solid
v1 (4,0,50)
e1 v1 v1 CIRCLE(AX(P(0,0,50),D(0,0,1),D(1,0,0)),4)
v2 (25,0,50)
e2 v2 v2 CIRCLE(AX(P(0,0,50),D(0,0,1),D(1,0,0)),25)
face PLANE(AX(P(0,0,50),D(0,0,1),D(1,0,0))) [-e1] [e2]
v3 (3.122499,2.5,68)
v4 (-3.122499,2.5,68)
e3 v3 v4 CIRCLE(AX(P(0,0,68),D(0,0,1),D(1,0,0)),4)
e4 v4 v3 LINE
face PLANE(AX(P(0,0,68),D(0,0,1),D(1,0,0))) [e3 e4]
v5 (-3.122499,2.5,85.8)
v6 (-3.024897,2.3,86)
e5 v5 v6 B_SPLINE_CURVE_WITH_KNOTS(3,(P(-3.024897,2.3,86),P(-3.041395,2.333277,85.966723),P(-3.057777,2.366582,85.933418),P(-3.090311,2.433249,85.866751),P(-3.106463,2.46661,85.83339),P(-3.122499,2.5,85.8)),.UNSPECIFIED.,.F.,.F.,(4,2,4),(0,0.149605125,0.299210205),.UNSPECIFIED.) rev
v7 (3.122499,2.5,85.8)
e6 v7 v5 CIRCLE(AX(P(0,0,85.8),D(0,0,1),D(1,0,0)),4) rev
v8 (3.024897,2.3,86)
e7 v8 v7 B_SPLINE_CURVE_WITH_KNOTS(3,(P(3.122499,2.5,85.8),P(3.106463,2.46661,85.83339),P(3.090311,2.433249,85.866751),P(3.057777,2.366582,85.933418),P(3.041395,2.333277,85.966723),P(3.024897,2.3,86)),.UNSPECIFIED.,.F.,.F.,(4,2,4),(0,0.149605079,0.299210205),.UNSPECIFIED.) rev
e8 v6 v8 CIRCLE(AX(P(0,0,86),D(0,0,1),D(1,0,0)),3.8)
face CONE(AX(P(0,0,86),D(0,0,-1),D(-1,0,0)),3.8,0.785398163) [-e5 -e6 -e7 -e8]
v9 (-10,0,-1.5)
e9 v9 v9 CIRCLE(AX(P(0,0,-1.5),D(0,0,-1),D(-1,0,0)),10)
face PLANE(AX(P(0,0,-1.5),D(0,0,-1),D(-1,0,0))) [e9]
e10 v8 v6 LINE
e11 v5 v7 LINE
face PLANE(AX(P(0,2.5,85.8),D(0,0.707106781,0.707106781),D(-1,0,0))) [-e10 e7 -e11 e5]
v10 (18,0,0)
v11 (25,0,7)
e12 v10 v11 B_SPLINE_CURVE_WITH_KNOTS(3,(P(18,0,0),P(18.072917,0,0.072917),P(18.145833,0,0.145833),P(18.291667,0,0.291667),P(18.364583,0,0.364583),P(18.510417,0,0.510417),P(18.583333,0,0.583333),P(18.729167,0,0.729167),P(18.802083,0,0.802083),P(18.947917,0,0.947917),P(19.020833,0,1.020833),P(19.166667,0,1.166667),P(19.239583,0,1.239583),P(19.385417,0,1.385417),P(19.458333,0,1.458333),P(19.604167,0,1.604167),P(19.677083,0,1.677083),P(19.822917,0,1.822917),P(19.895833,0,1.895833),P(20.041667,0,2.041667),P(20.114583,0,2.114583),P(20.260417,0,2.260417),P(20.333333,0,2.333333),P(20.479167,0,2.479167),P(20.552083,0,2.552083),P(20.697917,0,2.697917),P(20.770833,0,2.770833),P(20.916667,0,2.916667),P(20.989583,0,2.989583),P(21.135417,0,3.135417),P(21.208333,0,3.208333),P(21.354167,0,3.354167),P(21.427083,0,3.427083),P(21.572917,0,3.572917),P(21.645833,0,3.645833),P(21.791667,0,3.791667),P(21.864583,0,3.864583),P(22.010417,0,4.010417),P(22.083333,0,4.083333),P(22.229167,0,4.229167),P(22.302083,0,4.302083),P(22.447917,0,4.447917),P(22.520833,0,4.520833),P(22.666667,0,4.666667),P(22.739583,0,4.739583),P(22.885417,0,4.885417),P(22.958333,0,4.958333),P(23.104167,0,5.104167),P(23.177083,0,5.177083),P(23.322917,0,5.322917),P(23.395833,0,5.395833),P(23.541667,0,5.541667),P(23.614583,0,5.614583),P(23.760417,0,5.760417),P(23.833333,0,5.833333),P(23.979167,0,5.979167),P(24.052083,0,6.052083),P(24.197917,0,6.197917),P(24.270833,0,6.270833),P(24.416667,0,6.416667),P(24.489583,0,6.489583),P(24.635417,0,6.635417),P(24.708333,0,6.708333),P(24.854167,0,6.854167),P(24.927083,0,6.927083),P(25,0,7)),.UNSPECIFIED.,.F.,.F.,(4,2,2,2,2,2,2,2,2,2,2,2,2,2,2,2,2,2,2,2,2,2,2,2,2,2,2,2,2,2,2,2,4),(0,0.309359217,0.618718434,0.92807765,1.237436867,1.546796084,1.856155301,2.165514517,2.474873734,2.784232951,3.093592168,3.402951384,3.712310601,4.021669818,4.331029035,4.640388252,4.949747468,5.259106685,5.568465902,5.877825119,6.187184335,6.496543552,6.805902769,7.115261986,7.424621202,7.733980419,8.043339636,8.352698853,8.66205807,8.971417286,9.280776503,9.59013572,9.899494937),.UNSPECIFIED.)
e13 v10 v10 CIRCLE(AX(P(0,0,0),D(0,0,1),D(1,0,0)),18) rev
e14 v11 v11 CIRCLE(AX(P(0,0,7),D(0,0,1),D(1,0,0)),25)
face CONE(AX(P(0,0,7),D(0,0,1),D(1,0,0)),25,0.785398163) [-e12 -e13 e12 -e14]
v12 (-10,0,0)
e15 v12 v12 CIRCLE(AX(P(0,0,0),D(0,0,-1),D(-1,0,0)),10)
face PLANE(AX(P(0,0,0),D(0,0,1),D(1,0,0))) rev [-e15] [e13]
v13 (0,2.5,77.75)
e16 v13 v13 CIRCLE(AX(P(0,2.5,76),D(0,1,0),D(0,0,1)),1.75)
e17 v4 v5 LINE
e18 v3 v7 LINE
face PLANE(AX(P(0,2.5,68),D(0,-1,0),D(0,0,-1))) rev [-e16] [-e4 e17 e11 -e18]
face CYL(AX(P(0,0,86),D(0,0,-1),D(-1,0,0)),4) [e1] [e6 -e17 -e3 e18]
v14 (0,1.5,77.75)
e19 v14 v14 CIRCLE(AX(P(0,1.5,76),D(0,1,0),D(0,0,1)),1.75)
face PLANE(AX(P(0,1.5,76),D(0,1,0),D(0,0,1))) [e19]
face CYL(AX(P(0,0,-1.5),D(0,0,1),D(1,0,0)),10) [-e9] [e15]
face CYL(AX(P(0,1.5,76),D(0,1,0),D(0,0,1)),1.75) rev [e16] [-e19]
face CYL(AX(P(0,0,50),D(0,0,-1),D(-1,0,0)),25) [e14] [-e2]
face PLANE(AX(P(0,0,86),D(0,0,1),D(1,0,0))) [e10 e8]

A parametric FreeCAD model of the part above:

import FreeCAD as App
import Part
import Sketcher

V = App.Vector


def edges_at(feature, points):
    """Names of the edges that pass closest to the given points."""
    edges = feature.Shape.Edges
    near = lambda p: min(range(len(edges)), key=lambda i: edges[i].distToShape(Part.Vertex(*p))[0])
    return sorted({f"Edge{near(p) + 1}" for p in points})

doc = App.newDocument("Part")
body = doc.addObject("PartDesign::Body", "Body")

# Sketch on XY plane
sketch1 = doc.addObject("Sketcher::SketchObject", "Sketch")
body.addObject(sketch1)
sketch1.AttachmentSupport = (doc.XY_Plane, [""])
sketch1.MapMode = "FlatFace"
sketch1.addGeometry(Part.Circle(V(0, 0, 0), V(0, 0, 1), 25), False)
sketch1.addConstraint(Sketcher.Constraint("Coincident", 0, 3, -1, 1))
sketch1.addConstraint(Sketcher.Constraint("Diameter", 0, 50.0))
pad1 = doc.addObject("PartDesign::Pad", "Pad")
body.addObject(pad1)
pad1.Profile = sketch1
pad1.Length = 50
doc.recompute()

chamfer = doc.addObject("PartDesign::Chamfer", "Chamfer")
body.addObject(chamfer)
chamfer.Base = (pad1, edges_at(pad1, [(-25, 0, 0)]))
chamfer.Size = 7

# Sketch on XY plane
sketch2 = doc.addObject("Sketcher::SketchObject", "Sketch001")
body.addObject(sketch2)
sketch2.AttachmentSupport = (doc.XY_Plane, [""])
sketch2.MapMode = "FlatFace"
sketch2.addGeometry(Part.Circle(V(0, 0, 0), V(0, 0, 1), 10), False)
sketch2.addConstraint(Sketcher.Constraint("Coincident", 0, 3, -1, 1))
sketch2.addConstraint(Sketcher.Constraint("Diameter", 0, 20.0))
pad2 = doc.addObject("PartDesign::Pad", "Pad001")
body.addObject(pad2)
pad2.Profile = sketch2
pad2.Length = 1.5
pad2.Reversed = True

# Sketch on XY plane
sketch3 = doc.addObject("Sketcher::SketchObject", "Sketch002")
body.addObject(sketch3)
sketch3.AttachmentSupport = (doc.XY_Plane, [""])
sketch3.MapMode = "FlatFace"
sketch3.AttachmentOffset = App.Placement(V(0, 0, 50), App.Rotation())
sketch3.addGeometry(Part.Circle(V(0, 0, 0), V(0, 0, 1), 4), False)
sketch3.addConstraint(Sketcher.Constraint("Coincident", 0, 3, -1, 1))
sketch3.addConstraint(Sketcher.Constraint("Diameter", 0, 8.0))
pad3 = doc.addObject("PartDesign::Pad", "Pad002")
body.addObject(pad3)
pad3.Profile = sketch3
pad3.Length = 36

# Sketch on XY plane
sketch4 = doc.addObject("Sketcher::SketchObject", "Sketch003")
body.addObject(sketch4)
sketch4.AttachmentSupport = (doc.XY_Plane, [""])
sketch4.MapMode = "FlatFace"
sketch4.AttachmentOffset = App.Placement(V(0, 0, 86), App.Rotation())
sketch4.addGeometry(Part.LineSegment(V(-92, 2, 0), V(92, 2, 0)), False)
sketch4.addGeometry(Part.LineSegment(V(92, 2, 0), V(92, 180, 0)), False)
sketch4.addGeometry(Part.LineSegment(V(92, 180, 0), V(-92, 180, 0)), False)
sketch4.addGeometry(Part.LineSegment(V(-92, 180, 0), V(-92, 2, 0)), False)
sketch4.addConstraint(Sketcher.Constraint("Coincident", 0, 2, 1, 1))
sketch4.addConstraint(Sketcher.Constraint("Coincident", 1, 2, 2, 1))
sketch4.addConstraint(Sketcher.Constraint("Coincident", 2, 2, 3, 1))
sketch4.addConstraint(Sketcher.Constraint("Coincident", 3, 2, 0, 1))
sketch4.addConstraint(Sketcher.Constraint("Horizontal", 0))
sketch4.addConstraint(Sketcher.Constraint("Vertical", 1))
sketch4.addConstraint(Sketcher.Constraint("Horizontal", 2))
sketch4.addConstraint(Sketcher.Constraint("Vertical", 3))
sketch4.addConstraint(Sketcher.Constraint("DistanceY", -1, 1, 0, 2, 2.5))
sketch4.addConstraint(Sketcher.Constraint("DistanceX", 0, 1, 0, 2, 183.579035))
sketch4.addConstraint(Sketcher.Constraint("DistanceY", 1, 1, 1, 2, 177.334037))
sketch4.addConstraint(Sketcher.Constraint("DistanceX", -1, 1, 0, 2, 91.789518))
pocket1 = doc.addObject("PartDesign::Pocket", "Pocket")
body.addObject(pocket1)
pocket1.Profile = sketch4
pocket1.Length = 18

# Sketch on XZ plane
sketch5 = doc.addObject("Sketcher::SketchObject", "Sketch004")
body.addObject(sketch5)
sketch5.AttachmentSupport = (doc.XZ_Plane, [""])
sketch5.MapMode = "FlatFace"
sketch5.AttachmentOffset = App.Placement(V(0, 0, -2.5), App.Rotation())
sketch5.addGeometry(Part.Circle(V(0, 76, 0), V(0, 0, 1), 1.8), False)
sketch5.addConstraint(Sketcher.Constraint("PointOnObject", 0, 3, -2))
sketch5.addConstraint(Sketcher.Constraint("Diameter", 0, 3.5))
sketch5.addConstraint(Sketcher.Constraint("DistanceY", -1, 1, 0, 3, 76.0))
pocket2 = doc.addObject("PartDesign::Pocket", "Pocket001")
body.addObject(pocket2)
pocket2.Profile = sketch5
pocket2.Length = 1
pocket2.Reversed = True
doc.recompute()

chamfer2 = doc.addObject("PartDesign::Chamfer", "Chamfer001")
body.addObject(chamfer2)
chamfer2.Base = (pocket2, edges_at(pocket2, [(-1.325, -3.774, 86), (0, 2.5, 86)]))
chamfer2.Size = 0.2

doc.recompute()
